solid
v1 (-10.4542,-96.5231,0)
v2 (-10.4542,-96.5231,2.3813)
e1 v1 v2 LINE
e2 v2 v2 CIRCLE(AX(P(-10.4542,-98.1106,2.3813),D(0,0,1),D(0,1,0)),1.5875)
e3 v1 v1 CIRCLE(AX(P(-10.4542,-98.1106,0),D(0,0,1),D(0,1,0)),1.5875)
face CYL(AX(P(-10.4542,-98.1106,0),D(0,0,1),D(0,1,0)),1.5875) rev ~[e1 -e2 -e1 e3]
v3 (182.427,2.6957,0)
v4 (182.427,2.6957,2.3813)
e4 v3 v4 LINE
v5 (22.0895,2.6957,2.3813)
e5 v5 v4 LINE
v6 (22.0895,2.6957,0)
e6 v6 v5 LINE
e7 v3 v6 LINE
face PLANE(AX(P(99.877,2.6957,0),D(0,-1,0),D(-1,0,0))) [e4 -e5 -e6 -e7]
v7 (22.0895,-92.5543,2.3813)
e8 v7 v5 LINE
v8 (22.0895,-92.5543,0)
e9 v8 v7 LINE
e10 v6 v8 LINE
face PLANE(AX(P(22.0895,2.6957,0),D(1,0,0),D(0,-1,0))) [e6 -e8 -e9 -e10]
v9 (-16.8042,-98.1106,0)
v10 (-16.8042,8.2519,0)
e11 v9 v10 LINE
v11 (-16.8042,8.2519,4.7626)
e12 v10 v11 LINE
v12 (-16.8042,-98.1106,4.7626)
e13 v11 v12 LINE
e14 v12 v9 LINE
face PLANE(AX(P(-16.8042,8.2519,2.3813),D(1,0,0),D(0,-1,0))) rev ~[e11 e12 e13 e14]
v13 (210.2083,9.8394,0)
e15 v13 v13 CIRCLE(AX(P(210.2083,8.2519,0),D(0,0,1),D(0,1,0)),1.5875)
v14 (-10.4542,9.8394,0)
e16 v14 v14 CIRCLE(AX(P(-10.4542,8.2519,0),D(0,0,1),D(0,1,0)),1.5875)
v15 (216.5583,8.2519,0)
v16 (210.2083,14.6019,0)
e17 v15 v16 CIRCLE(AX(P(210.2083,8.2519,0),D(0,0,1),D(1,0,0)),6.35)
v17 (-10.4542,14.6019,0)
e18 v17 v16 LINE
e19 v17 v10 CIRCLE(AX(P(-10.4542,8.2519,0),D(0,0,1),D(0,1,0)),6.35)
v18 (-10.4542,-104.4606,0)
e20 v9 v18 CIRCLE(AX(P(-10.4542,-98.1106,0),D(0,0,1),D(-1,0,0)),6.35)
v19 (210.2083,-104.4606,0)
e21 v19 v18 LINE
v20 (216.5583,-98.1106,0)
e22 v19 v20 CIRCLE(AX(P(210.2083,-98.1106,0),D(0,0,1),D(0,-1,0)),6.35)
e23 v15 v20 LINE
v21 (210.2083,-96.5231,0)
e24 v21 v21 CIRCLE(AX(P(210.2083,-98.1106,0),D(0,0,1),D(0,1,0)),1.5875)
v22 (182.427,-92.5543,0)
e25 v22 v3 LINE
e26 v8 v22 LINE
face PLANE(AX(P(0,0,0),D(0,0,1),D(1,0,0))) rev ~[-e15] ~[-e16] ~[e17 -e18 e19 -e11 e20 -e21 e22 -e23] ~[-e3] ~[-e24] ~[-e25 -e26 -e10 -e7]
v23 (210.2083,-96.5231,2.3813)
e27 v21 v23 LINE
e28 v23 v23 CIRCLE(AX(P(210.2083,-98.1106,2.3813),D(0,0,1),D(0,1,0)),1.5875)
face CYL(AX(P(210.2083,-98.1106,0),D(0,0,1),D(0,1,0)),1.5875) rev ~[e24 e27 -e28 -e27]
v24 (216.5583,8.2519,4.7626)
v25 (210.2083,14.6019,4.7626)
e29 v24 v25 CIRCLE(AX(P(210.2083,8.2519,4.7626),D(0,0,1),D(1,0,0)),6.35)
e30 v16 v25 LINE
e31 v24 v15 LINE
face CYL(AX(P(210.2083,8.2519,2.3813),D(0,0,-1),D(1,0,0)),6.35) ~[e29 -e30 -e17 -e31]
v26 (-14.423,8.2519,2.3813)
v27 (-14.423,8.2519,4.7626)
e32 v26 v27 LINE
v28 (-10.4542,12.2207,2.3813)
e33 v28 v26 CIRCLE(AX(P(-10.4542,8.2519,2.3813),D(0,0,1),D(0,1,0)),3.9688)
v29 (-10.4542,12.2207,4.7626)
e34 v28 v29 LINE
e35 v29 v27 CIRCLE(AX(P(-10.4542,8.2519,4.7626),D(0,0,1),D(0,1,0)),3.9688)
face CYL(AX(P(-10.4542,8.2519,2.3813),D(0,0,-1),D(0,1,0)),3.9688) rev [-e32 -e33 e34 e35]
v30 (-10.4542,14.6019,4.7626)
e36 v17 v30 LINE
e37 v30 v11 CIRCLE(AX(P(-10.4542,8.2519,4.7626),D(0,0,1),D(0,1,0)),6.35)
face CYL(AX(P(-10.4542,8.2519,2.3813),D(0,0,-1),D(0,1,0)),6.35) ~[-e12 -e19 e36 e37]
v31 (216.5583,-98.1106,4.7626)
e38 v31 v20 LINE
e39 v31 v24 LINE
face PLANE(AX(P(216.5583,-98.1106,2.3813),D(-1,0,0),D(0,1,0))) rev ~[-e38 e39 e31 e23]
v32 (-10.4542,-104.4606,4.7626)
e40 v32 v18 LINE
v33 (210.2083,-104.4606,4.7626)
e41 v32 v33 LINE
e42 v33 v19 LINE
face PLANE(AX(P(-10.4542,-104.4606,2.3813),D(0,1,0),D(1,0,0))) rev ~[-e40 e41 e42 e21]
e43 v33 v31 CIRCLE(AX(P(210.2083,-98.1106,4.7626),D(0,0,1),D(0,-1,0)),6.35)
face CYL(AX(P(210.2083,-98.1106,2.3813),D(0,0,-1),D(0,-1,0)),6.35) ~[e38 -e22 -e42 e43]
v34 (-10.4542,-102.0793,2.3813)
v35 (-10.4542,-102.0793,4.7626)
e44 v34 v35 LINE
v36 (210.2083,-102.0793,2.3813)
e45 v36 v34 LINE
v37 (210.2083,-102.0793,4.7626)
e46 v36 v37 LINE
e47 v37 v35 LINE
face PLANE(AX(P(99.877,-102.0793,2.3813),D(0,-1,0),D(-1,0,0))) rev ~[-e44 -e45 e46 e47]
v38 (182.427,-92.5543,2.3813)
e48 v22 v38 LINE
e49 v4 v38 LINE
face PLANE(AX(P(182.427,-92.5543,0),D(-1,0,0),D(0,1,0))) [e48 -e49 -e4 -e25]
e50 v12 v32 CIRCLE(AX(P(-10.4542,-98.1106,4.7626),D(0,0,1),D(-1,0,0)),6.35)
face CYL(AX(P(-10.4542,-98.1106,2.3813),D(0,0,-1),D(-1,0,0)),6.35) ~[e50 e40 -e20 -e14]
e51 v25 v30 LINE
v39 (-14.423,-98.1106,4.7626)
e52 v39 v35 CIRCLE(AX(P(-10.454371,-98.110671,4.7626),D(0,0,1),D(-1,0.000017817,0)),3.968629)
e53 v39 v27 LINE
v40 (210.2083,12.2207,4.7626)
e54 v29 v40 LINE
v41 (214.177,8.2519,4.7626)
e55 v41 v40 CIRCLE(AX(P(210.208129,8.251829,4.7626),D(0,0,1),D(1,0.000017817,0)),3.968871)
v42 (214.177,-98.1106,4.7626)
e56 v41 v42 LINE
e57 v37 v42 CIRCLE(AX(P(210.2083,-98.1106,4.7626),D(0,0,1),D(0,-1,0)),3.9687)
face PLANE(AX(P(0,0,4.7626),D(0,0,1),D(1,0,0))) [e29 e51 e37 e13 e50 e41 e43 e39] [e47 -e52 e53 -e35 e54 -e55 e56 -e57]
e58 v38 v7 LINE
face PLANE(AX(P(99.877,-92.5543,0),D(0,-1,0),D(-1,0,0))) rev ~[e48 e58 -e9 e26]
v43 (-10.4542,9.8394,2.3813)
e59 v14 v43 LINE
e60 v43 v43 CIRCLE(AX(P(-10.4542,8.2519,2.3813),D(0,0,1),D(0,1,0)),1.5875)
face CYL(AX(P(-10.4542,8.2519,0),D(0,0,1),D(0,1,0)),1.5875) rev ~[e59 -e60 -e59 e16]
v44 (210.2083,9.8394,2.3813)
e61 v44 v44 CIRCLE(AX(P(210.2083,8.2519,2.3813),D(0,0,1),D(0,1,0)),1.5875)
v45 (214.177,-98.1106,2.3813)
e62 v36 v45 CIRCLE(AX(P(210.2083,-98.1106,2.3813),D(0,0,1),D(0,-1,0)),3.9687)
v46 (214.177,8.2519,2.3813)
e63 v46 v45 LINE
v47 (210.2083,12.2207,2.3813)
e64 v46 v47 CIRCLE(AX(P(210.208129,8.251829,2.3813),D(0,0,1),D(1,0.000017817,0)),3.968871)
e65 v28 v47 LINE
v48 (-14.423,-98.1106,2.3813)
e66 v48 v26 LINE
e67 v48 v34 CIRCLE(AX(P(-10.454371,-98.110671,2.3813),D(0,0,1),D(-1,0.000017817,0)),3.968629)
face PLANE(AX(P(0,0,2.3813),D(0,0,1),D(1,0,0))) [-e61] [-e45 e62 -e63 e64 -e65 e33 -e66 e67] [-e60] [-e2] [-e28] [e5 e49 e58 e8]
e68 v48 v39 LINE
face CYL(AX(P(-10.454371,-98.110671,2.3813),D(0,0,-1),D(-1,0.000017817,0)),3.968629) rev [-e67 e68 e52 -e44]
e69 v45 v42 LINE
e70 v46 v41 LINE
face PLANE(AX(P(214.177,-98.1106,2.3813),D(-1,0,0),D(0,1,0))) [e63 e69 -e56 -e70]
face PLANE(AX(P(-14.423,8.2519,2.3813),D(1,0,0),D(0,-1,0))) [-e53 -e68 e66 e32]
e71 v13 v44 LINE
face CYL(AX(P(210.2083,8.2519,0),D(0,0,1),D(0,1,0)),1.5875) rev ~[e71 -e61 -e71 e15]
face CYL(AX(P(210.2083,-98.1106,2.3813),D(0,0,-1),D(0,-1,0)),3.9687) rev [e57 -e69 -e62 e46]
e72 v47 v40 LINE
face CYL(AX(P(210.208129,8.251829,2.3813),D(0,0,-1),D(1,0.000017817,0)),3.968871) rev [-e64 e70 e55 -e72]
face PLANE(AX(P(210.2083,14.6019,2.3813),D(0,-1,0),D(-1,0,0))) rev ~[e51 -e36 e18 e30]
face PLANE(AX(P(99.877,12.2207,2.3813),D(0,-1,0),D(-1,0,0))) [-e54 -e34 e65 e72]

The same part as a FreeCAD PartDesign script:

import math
import FreeCAD as App
import Part
import Sketcher
Q = App.Units.Quantity


def add_polygon(sketch, points):
    """Adds a closed chain of lines whose ends are joined by coincident constraints."""
    first, n = sketch.GeometryCount, len(points)
    for a, b in zip(points, points[1:] + points[:1]):
        sketch.addGeometry(Part.LineSegment(App.Vector(*a, 0), App.Vector(*b, 0)), False)
    for i in range(n):
        sketch.addConstraint(Sketcher.Constraint("Coincident", first + i, 2, first + (i + 1) % n, 1))

doc = App.newDocument("Part")
params = doc.addObject("Spreadsheet::Sheet", "Params")
for row, (alias, value) in enumerate([
    ("sketch1_radius", "0.25 in"),
    ("sketch1_height", "3.75 in"),
    ("sketch1_width", "8.6875 in"),
    ("sketch1_width2", "6.3125 in"),
    ("pad1_length", "0.093752 in"),
    ("sketch2_radius", "0.156248 in"),
    ("sketch2_radius2", "0.25 in"),
    ("sketch2_width", "8.6875 in"),
    ("sketch2_height", "4.1875 in"),
    ("pad2_length", "0.093752 in"),
    ("sketch3_diameter", "0.125 in"),
    ("hole_diameter", "0.125 in"),
], start=1):
    params.set(f"A{row}", alias)
    params.set(f"B{row}", "=" + value)
    params.setAlias(f"B{row}", alias)

body = doc.addObject("PartDesign::Body", "Body")

# Sketch on XY plane
sketch1 = body.newObject("Sketcher::SketchObject", "Sketch")
sketch1.AttachmentSupport = (doc.getObject("XY_Plane"), [""])
sketch1.MapMode = "FlatFace"
sketch1.addGeometry(Part.LineSegment(App.Vector(210, 15, 0), App.Vector(-10, 15, 0)), False)  # 0
sketch1.addGeometry(Part.ArcOfCircle(Part.Circle(App.Vector(-10, 8, 0), App.Vector(0, 0, 1), 6), math.radians(90), math.radians(180)), False)  # 1
sketch1.addGeometry(Part.LineSegment(App.Vector(-17, 8, 0), App.Vector(-17, -98, 0)), False)  # 2
sketch1.addGeometry(Part.ArcOfCircle(Part.Circle(App.Vector(-10, -98, 0), App.Vector(0, 0, 1), 6), math.radians(180), math.radians(270)), False)  # 3
sketch1.addGeometry(Part.LineSegment(App.Vector(-10, -104, 0), App.Vector(210, -104, 0)), False)  # 4
sketch1.addGeometry(Part.ArcOfCircle(Part.Circle(App.Vector(210, -98, 0), App.Vector(0, 0, 1), 6), math.radians(-90), math.radians(0)), False)  # 5
sketch1.addGeometry(Part.LineSegment(App.Vector(217, -98, 0), App.Vector(217, 8, 0)), False)  # 6
sketch1.addGeometry(Part.ArcOfCircle(Part.Circle(App.Vector(210, 8, 0), App.Vector(0, 0, 1), 6), math.radians(0), math.radians(90)), False)  # 7
add_polygon(sketch1, [(182, -93), (22, -93), (22, 3), (182, 3)])  # lines 8-11
sketch1.addConstraint([
    Sketcher.Constraint("Tangent", 0, 2, 1, 1),
    Sketcher.Constraint("Tangent", 1, 2, 2, 1),
    Sketcher.Constraint("Tangent", 2, 2, 3, 1),
    Sketcher.Constraint("Tangent", 3, 2, 4, 1),
    Sketcher.Constraint("Tangent", 4, 2, 5, 1),
    Sketcher.Constraint("Tangent", 5, 2, 6, 1),
    Sketcher.Constraint("Tangent", 6, 2, 7, 1),
    Sketcher.Constraint("Tangent", 7, 2, 0, 1),
    Sketcher.Constraint("Horizontal", 0),
    Sketcher.Constraint("Vertical", 2),
    Sketcher.Constraint("Horizontal", 4),
    Sketcher.Constraint("Vertical", 6),
    Sketcher.Constraint("Horizontal", 8),
    Sketcher.Constraint("Vertical", 9),
    Sketcher.Constraint("Horizontal", 10),
    Sketcher.Constraint("Vertical", 11),
    Sketcher.Constraint("Equal", 1, 3),
    Sketcher.Constraint("Equal", 3, 5),
    Sketcher.Constraint("Equal", 5, 7),
    Sketcher.Constraint("Radius", 1, Q("0.25 in")),
    Sketcher.Constraint("DistanceY", 3, 2, 0, 2, Q("4.6875 in")),
    Sketcher.Constraint("DistanceY", 9, 1, 9, 2, Q("3.75 in")),
    Sketcher.Constraint("DistanceX", 0, 2, 0, 1, Q("8.6875 in")),
    Sketcher.Constraint("DistanceX", 8, 2, 8, 1, Q("6.3125 in")),
    Sketcher.Constraint("DistanceX", 3, 3, 8, 2, Q("1.281248 in")),
    Sketcher.Constraint("DistanceY", 3, 3, 8, 2, Q("0.218752 in")),
    Sketcher.Constraint("DistanceX", 1, 3, -1, 1, Q("10.4542 mm")),
    Sketcher.Constraint("DistanceY", -1, 1, 1, 3, Q("8.252 mm")),
])
sketch1.setExpression("Constraints[23]", "Params.sketch1_radius")
sketch1.setExpression("Constraints[25]", "Params.sketch1_height")
sketch1.setExpression("Constraints[26]", "Params.sketch1_width")
sketch1.setExpression("Constraints[27]", "Params.sketch1_width2")
pad1 = body.newObject("PartDesign::Pad", "Pad")
pad1.Profile = sketch1
pad1.setExpression("Length", "Params.pad1_length")

# Sketch on XY plane
sketch2 = body.newObject("Sketcher::SketchObject", "Sketch001")
sketch2.AttachmentSupport = (doc.getObject("XY_Plane"), [""])
sketch2.MapMode = "FlatFace"
sketch2.AttachmentOffset = App.Placement(App.Vector(0, 0, 0.093752 * 25.4), App.Rotation())
sketch2.addGeometry([
    Part.ArcOfCircle(Part.Circle(App.Vector(210.2, 8.3, 0), App.Vector(0, 0, 1), 6.3), math.radians(0), math.radians(90)),  # 0
    Part.LineSegment(App.Vector(210.2, 14.6, 0), App.Vector(-10.5, 14.6, 0)),  # 1
    Part.ArcOfCircle(Part.Circle(App.Vector(-10.5, 8.3, 0), App.Vector(0, 0, 1), 6.4), math.radians(90), math.radians(180)),  # 2
    Part.LineSegment(App.Vector(-16.8, 8.3, 0), App.Vector(-16.8, -98.1, 0)),  # 3
    Part.ArcOfCircle(Part.Circle(App.Vector(-10.5, -98.1, 0), App.Vector(0, 0, 1), 6.4), math.radians(180), math.radians(270)),  # 4
    Part.LineSegment(App.Vector(-10.5, -104.5, 0), App.Vector(210.2, -104.5, 0)),  # 5
    Part.ArcOfCircle(Part.Circle(App.Vector(210.2, -98.1, 0), App.Vector(0, 0, 1), 6.3), math.radians(-90), math.radians(0)),  # 6
    Part.LineSegment(App.Vector(216.6, -98.1, 0), App.Vector(216.6, 8.3, 0)),  # 7
    Part.LineSegment(App.Vector(-10.5, 12.2, 0), App.Vector(210.2, 12.2, 0)),  # 8
    Part.ArcOfCircle(Part.Circle(App.Vector(210.2, 8.3, 0), App.Vector(0, 0, 1), 4), math.radians(0), math.radians(90)),  # 9
    Part.LineSegment(App.Vector(214.2, 8.3, 0), App.Vector(214.2, -98.1, 0)),  # 10
    Part.ArcOfCircle(Part.Circle(App.Vector(210.2, -98.1, 0), App.Vector(0, 0, 1), 4), math.radians(-90), math.radians(0)),  # 11
    Part.LineSegment(App.Vector(210.2, -102.1, 0), App.Vector(-10.5, -102.1, 0)),  # 12
    Part.ArcOfCircle(Part.Circle(App.Vector(-10.5, -98.1, 0), App.Vector(0, 0, 1), 4), math.radians(180), math.radians(270)),  # 13
    Part.LineSegment(App.Vector(-14.4, -98.1, 0), App.Vector(-14.4, 8.3, 0)),  # 14
    Part.ArcOfCircle(Part.Circle(App.Vector(-10.5, 8.3, 0), App.Vector(0, 0, 1), 4), math.radians(90), math.radians(180)),  # 15
], False)
sketch2.addConstraint([
    Sketcher.Constraint("Tangent", 0, 2, 1, 1),
    Sketcher.Constraint("Tangent", 1, 2, 2, 1),
    Sketcher.Constraint("Tangent", 2, 2, 3, 1),
    Sketcher.Constraint("Tangent", 3, 2, 4, 1),
    Sketcher.Constraint("Tangent", 4, 2, 5, 1),
    Sketcher.Constraint("Tangent", 5, 2, 6, 1),
    Sketcher.Constraint("Tangent", 6, 2, 7, 1),
    Sketcher.Constraint("Tangent", 7, 2, 0, 1),
    Sketcher.Constraint("Tangent", 8, 2, 9, 2),
    Sketcher.Constraint("Tangent", 9, 1, 10, 1),
    Sketcher.Constraint("Tangent", 10, 2, 11, 2),
    Sketcher.Constraint("Tangent", 11, 1, 12, 1),
    Sketcher.Constraint("Tangent", 12, 2, 13, 2),
    Sketcher.Constraint("Tangent", 13, 1, 14, 1),
    Sketcher.Constraint("Tangent", 14, 2, 15, 2),
    Sketcher.Constraint("Tangent", 15, 1, 8, 1),
    Sketcher.Constraint("Horizontal", 1),
    Sketcher.Constraint("Vertical", 3),
    Sketcher.Constraint("Horizontal", 5),
    Sketcher.Constraint("Vertical", 7),
    Sketcher.Constraint("Horizontal", 8),
    Sketcher.Constraint("Vertical", 10),
    Sketcher.Constraint("Horizontal", 12),
    Sketcher.Constraint("Vertical", 14),
    Sketcher.Constraint("Coincident", 9, 3, 0, 3),
    Sketcher.Constraint("Coincident", 11, 3, 6, 3),
    Sketcher.Constraint("Coincident", 13, 3, 4, 3),
    Sketcher.Constraint("Equal", 0, 2),
    Sketcher.Constraint("Equal", 2, 4),
    Sketcher.Constraint("Equal", 4, 6),
    Sketcher.Constraint("Equal", 13, 15),
    Sketcher.Constraint("Radius", 9, Q("0.156248 in")),
    Sketcher.Constraint("Radius", 0, Q("0.25 in")),
    Sketcher.Constraint("DistanceX", 1, 2, 1, 1, Q("8.6875 in")),
    Sketcher.Constraint("DistanceY", 3, 2, 3, 1, Q("4.1875 in")),
    Sketcher.Constraint("DistanceX", -1, 1, 0, 3, Q("210.2083 mm")),
    Sketcher.Constraint("DistanceY", -1, 1, 0, 3, Q("8.252 mm")),
])
sketch2.setExpression("Constraints[31]", "Params.sketch2_radius")
sketch2.setExpression("Constraints[32]", "Params.sketch2_radius2")
sketch2.setExpression("Constraints[33]", "Params.sketch2_width")
sketch2.setExpression("Constraints[34]", "Params.sketch2_height")
pad2 = body.newObject("PartDesign::Pad", "Pad001")
pad2.Profile = sketch2
pad2.setExpression("Length", "Params.pad2_length")

# Sketch on XY plane
sketch3 = body.newObject("Sketcher::SketchObject", "Sketch002")
sketch3.AttachmentSupport = (doc.getObject("XY_Plane"), [""])
sketch3.MapMode = "FlatFace"
sketch3.addGeometry([
    Part.Circle(App.Vector(210.2, 8.3, 0), App.Vector(0, 0, 1), 1.6),
    Part.Circle(App.Vector(-10.5, 8.3, 0), App.Vector(0, 0, 1), 1.6),
    Part.Circle(App.Vector(-10.5, -98.1, 0), App.Vector(0, 0, 1), 1.6),
    Part.Circle(App.Vector(210.2, -98.1, 0), App.Vector(0, 0, 1), 1.6),
], False)
sketch3.addConstraint([
    Sketcher.Constraint("Equal", 0, 1),
    Sketcher.Constraint("Equal", 1, 2),
    Sketcher.Constraint("Equal", 2, 3),
    Sketcher.Constraint("Horizontal", 0, 3, 1, 3),
    Sketcher.Constraint("Horizontal", 2, 3, 3, 3),
    Sketcher.Constraint("Vertical", 1, 3, 2, 3),
    Sketcher.Constraint("Vertical", 0, 3, 3, 3),
    Sketcher.Constraint("Diameter", 0, Q("0.125 in")),
    Sketcher.Constraint("DistanceX", 1, 3, 0, 3, Q("8.6875 in")),
    Sketcher.Constraint("DistanceY", 2, 3, 1, 3, Q("4.1875 in")),
    Sketcher.Constraint("DistanceX", -1, 1, 0, 3, Q("210.2083 mm")),
    Sketcher.Constraint("DistanceY", -1, 1, 0, 3, Q("8.252 mm")),
])
sketch3.setExpression("Constraints[7]", "Params.sketch3_diameter")
doc.recompute()
hole = body.newObject("PartDesign::Hole", "Hole")
hole.Profile = sketch3
hole.ThreadType = "None"
hole.setExpression("Diameter", "Params.hole_diameter")
hole.DepthType = "ThroughAll"
hole.Reversed = True

doc.recompute()
